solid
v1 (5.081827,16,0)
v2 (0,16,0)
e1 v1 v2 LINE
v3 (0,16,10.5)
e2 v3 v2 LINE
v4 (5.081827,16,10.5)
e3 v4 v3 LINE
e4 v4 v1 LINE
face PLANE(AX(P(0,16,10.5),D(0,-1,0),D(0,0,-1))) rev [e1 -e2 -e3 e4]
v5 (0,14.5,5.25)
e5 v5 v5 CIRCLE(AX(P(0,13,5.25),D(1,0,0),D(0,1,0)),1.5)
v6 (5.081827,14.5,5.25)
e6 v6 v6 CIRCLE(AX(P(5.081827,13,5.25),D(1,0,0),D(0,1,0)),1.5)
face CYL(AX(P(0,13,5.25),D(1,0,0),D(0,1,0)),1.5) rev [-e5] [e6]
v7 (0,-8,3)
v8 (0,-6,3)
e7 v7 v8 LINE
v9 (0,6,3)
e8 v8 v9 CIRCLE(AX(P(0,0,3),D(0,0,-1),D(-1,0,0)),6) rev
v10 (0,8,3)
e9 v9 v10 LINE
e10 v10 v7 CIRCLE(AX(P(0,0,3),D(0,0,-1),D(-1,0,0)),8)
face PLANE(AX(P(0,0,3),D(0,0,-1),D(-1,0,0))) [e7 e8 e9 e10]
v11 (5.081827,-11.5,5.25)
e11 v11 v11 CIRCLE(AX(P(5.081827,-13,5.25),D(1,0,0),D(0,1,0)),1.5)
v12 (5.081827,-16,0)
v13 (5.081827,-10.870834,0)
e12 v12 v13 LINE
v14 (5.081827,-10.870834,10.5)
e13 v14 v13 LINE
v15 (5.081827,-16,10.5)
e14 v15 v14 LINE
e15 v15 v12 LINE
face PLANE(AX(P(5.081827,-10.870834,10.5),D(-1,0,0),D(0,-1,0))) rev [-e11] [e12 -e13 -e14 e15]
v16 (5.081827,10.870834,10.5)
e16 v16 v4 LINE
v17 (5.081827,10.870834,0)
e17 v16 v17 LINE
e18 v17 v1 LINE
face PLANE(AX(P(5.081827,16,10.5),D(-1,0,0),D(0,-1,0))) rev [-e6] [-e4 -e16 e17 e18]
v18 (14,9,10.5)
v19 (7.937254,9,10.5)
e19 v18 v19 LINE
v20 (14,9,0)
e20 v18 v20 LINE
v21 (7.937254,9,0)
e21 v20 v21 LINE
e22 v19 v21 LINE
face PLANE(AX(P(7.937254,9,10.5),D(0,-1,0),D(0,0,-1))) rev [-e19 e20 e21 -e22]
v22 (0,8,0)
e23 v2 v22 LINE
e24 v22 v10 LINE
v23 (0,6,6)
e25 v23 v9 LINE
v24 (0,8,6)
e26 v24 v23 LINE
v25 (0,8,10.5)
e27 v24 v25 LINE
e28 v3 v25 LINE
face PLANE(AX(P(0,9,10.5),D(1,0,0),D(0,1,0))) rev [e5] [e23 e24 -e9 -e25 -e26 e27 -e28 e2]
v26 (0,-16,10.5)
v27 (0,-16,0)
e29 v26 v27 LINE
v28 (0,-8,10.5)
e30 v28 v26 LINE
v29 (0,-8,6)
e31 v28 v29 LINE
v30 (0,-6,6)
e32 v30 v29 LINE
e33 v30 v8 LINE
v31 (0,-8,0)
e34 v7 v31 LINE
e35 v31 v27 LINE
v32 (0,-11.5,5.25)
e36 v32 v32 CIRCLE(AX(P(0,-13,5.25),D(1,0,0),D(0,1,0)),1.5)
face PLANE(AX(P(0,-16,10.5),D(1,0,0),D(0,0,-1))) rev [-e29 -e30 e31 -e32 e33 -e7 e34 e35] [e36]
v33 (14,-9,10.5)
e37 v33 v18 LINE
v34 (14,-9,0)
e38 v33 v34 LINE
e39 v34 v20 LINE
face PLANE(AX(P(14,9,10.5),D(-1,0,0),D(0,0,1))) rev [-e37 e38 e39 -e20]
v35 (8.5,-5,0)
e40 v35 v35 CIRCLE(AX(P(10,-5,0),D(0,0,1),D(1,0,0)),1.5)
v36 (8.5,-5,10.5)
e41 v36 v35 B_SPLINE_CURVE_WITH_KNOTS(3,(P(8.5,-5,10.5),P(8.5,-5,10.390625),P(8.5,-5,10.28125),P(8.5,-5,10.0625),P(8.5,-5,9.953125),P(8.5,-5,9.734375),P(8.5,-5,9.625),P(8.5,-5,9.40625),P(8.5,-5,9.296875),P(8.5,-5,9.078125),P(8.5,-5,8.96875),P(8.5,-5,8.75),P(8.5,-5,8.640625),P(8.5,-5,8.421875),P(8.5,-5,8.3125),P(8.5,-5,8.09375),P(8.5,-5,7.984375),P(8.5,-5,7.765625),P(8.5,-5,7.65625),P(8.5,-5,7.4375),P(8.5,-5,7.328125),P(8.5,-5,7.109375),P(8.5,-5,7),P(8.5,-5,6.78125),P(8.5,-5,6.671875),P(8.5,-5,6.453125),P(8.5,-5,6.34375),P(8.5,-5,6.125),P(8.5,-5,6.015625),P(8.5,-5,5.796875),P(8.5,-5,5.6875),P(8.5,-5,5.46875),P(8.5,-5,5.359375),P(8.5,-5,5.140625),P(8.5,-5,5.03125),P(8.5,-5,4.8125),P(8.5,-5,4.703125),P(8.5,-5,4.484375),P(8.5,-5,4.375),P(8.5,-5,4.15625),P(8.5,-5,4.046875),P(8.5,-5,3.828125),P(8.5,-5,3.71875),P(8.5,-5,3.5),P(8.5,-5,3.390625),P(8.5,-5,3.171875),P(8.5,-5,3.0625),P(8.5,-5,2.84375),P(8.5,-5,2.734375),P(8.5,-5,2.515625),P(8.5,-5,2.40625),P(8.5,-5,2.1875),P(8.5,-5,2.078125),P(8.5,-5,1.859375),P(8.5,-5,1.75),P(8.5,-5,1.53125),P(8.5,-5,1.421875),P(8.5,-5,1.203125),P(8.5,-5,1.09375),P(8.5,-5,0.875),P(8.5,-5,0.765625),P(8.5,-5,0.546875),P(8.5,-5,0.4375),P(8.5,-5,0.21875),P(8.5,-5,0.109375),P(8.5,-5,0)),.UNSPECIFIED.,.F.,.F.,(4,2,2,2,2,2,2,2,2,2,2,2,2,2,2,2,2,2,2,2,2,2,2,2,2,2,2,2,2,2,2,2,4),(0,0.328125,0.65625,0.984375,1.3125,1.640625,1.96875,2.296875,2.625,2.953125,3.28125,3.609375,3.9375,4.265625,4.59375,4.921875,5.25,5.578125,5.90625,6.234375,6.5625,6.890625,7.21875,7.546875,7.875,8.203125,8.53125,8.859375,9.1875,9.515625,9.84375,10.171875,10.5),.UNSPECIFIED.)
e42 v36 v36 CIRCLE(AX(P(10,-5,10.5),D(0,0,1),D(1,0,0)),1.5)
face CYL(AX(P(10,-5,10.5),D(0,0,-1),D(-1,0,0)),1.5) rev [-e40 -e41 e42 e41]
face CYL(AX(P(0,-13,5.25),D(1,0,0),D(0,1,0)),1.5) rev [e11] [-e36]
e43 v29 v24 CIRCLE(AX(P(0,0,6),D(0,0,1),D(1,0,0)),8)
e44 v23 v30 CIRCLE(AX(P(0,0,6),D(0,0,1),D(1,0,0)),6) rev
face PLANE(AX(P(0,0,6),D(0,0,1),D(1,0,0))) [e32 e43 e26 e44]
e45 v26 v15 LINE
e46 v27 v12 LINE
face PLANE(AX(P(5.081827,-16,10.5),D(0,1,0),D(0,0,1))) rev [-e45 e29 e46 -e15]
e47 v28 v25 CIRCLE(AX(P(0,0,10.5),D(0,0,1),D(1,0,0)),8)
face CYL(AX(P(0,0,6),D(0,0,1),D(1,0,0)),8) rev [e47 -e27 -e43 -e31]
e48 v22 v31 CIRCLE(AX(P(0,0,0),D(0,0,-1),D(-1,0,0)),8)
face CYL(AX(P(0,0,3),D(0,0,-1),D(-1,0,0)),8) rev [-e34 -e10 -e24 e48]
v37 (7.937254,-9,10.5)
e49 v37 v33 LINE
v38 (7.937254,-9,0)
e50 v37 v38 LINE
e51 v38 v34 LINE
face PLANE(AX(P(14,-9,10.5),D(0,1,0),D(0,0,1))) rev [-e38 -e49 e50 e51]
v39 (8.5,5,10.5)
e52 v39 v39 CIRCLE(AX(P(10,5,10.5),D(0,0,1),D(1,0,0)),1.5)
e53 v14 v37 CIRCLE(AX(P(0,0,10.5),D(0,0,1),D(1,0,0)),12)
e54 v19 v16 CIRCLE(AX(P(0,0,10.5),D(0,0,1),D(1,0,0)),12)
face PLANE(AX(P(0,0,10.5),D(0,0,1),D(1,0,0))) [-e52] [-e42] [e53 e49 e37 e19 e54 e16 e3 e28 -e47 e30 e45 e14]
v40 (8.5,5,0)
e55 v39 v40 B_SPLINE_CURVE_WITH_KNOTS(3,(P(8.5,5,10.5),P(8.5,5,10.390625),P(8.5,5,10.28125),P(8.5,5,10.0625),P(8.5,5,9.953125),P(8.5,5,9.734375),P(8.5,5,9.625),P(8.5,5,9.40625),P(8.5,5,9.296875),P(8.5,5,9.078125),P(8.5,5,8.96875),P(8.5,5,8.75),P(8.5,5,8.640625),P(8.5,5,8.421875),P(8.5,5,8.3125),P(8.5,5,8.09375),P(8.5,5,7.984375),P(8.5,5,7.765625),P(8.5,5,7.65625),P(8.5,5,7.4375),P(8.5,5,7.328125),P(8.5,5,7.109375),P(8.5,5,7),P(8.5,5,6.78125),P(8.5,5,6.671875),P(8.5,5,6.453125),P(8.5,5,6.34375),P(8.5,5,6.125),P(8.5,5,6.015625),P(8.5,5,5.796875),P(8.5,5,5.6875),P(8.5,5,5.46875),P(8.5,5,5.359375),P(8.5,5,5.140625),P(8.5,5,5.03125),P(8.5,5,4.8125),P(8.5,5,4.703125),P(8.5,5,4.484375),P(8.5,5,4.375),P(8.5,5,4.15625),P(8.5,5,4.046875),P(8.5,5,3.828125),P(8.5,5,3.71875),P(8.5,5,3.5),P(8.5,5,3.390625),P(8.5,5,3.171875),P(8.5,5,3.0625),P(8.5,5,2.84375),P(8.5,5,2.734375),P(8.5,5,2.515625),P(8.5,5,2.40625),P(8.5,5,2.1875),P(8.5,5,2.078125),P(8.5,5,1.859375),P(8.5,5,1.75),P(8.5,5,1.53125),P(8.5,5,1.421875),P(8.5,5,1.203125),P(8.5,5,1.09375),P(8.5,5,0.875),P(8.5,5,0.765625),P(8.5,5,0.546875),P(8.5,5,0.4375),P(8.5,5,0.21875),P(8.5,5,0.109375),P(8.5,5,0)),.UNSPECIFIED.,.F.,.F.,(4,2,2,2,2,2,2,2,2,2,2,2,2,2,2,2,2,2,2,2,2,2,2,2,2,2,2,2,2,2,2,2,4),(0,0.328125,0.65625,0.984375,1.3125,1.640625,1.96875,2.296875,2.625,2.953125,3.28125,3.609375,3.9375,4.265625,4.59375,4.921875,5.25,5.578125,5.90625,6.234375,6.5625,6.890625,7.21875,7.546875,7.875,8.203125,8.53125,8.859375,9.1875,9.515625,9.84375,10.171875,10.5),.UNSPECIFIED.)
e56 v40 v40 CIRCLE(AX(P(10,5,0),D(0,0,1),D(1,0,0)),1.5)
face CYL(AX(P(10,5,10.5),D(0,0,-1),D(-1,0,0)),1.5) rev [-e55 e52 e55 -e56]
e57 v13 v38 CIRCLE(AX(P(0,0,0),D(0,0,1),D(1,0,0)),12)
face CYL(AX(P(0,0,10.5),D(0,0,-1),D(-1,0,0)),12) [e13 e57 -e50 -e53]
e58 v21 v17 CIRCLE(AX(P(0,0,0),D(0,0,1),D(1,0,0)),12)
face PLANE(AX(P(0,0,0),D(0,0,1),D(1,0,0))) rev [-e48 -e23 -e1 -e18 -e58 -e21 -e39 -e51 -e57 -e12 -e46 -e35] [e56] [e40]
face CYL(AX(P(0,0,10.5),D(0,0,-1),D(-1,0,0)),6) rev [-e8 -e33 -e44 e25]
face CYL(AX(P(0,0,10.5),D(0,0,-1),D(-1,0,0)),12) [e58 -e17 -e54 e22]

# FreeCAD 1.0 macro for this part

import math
import FreeCAD as App
import Part
import Sketcher
from FreeCAD import Vector
Q = App.Units.Quantity

doc = App.newDocument("Part")
body = doc.addObject("PartDesign::Body", "Body")

# Sketch on XY plane
sketch1 = body.newObject("Sketcher::SketchObject", "Sketch")
sketch1.AttachmentSupport = (doc.getObject("XY_Plane"), [""])
sketch1.MapMode = "FlatFace"
sketch1.addGeometry([
    Part.LineSegment(Vector(14, 9, 0), Vector(7.9, 9, 0)),  # 0
    Part.ArcOfCircle(Part.Circle(Vector(0, 0, 0), Vector(0, 0, 1), 12), math.radians(48.59), math.radians(64.95)),  # 1
    Part.LineSegment(Vector(5.1, 10.9, 0), Vector(5.1, 16, 0)),  # 2
    Part.LineSegment(Vector(5.1, 16, 0), Vector(0, 16, 0)),  # 3
    Part.LineSegment(Vector(0, 16, 0), Vector(0, 6, 0)),  # 4
    Part.ArcOfCircle(Part.Circle(Vector(0, 0, 0), Vector(0, 0, 1), 6), math.radians(-90), math.radians(90)),  # 5
    Part.LineSegment(Vector(0, -6, 0), Vector(0, -16, 0)),  # 6
    Part.LineSegment(Vector(0, -16, 0), Vector(5.1, -16, 0)),  # 7
    Part.LineSegment(Vector(5.1, -16, 0), Vector(5.1, -10.9, 0)),  # 8
    Part.ArcOfCircle(Part.Circle(Vector(0, 0, 0), Vector(0, 0, 1), 12), math.radians(-64.95), math.radians(-48.59)),  # 9
    Part.LineSegment(Vector(7.9, -9, 0), Vector(14, -9, 0)),  # 10
    Part.LineSegment(Vector(14, -9, 0), Vector(14, 9, 0)),  # 11
    Part.Circle(Vector(10, -5, 0), Vector(0, 0, 1), 1.5),  # 12
    Part.Circle(Vector(10, 5, 0), Vector(0, 0, 1), 1.5),  # 13
], False)
sketch1.addConstraint([
    Sketcher.Constraint("Coincident", 0, 2, 1, 1),
    Sketcher.Constraint("Coincident", 1, 2, 2, 1),
    Sketcher.Constraint("Coincident", 2, 2, 3, 1),
    Sketcher.Constraint("Coincident", 3, 2, 4, 1),
    Sketcher.Constraint("Coincident", 4, 2, 5, 2),
    Sketcher.Constraint("Coincident", 5, 1, 6, 1),
    Sketcher.Constraint("Coincident", 6, 2, 7, 1),
    Sketcher.Constraint("Coincident", 7, 2, 8, 1),
    Sketcher.Constraint("Coincident", 8, 2, 9, 1),
    Sketcher.Constraint("Coincident", 9, 2, 10, 1),
    Sketcher.Constraint("Coincident", 10, 2, 11, 1),
    Sketcher.Constraint("Coincident", 11, 2, 0, 1),
    Sketcher.Constraint("Horizontal", 0),
    Sketcher.Constraint("Vertical", 2),
    Sketcher.Constraint("Horizontal", 3),
    Sketcher.Constraint("Vertical", 4),
    Sketcher.Constraint("Vertical", 6),
    Sketcher.Constraint("Horizontal", 7),
    Sketcher.Constraint("Vertical", 8),
    Sketcher.Constraint("Horizontal", 10),
    Sketcher.Constraint("Vertical", 11),
    Sketcher.Constraint("Coincident", 1, 3, -1, 1),
    Sketcher.Constraint("Coincident", 5, 3, -1, 1),
    Sketcher.Constraint("Coincident", 9, 3, -1, 1),
    Sketcher.Constraint("Equal", 1, 9),
    Sketcher.Constraint("Equal", 12, 13),
    Sketcher.Constraint("Symmetric", 3, 2, 6, 2, -1, 1),
    Sketcher.Constraint("Symmetric", 12, 3, 13, 3, -1),
    Sketcher.Constraint("PointOnObject", 3, 2, -2),
    Sketcher.Constraint("Vertical", 2, 2, 7, 2),
    Sketcher.Constraint("Vertical", 0, 2, 9, 2),
    Sketcher.Constraint("Diameter", 12, Q("3 mm")),
    Sketcher.Constraint("Radius", 1, Q("12 mm")),
    Sketcher.Constraint("Radius", 5, Q("6 mm")),
    Sketcher.Constraint("DistanceY", 4, 2, 4, 1, Q("10 mm")),
    Sketcher.Constraint("DistanceY", 11, 1, 11, 2, Q("18 mm")),
    Sketcher.Constraint("DistanceX", -1, 1, 12, 3, Q("10 mm")),
    Sketcher.Constraint("DistanceY", 12, 3, -1, 1, Q("5 mm")),
    Sketcher.Constraint("DistanceX", -1, 1, 10, 2, Q("14 mm")),
    Sketcher.Constraint("DistanceX", 3, 2, 3, 1, Q("5.081827 mm")),
])
pad1 = body.newObject("PartDesign::Pad", "Pad")
pad1.Profile = sketch1
pad1.Length = 10.5

# Sketch on XY plane
sketch2 = body.newObject("Sketcher::SketchObject", "Sketch001")
sketch2.AttachmentSupport = (doc.getObject("XY_Plane"), [""])
sketch2.MapMode = "FlatFace"
sketch2.AttachmentOffset = App.Placement(Vector(0, 0, 10.5), App.Rotation())
sketch2.addGeometry(Part.Circle(Vector(0, 0, 0), Vector(0, 0, 1), 8), False)
sketch2.addConstraint([
    Sketcher.Constraint("Coincident", 0, 3, -1, 1),
    Sketcher.Constraint("Diameter", 0, Q("16 mm")),
])
pocket1 = body.newObject("PartDesign::Pocket", "Pocket")
pocket1.Profile = sketch2
pocket1.Length = 4.5

# Sketch on YZ plane
sketch3 = body.newObject("Sketcher::SketchObject", "Sketch002")
sketch3.AttachmentSupport = (doc.getObject("YZ_Plane"), [""])
sketch3.MapMode = "FlatFace"
sketch3.AttachmentOffset = App.Placement(Vector(0, 0, 5.081827), App.Rotation())
sketch3.addGeometry([
    Part.Circle(Vector(13, 5.2, 0), Vector(0, 0, 1), 1.5),
    Part.Circle(Vector(-13, 5.2, 0), Vector(0, 0, 1), 1.5),
], False)
sketch3.addConstraint([
    Sketcher.Constraint("Equal", 0, 1),
    Sketcher.Constraint("Symmetric", 0, 3, 1, 3, -2),
    Sketcher.Constraint("Diameter", 0, Q("3 mm")),
    Sketcher.Constraint("DistanceX", -1, 1, 0, 3, Q("13 mm")),
    Sketcher.Constraint("DistanceY", -1, 1, 0, 3, Q("5.25 mm")),
])
pocket2 = body.newObject("PartDesign::Pocket", "Pocket001")
pocket2.Profile = sketch3
pocket2.Type = "ThroughAll"

# Sketch on XY plane
sketch4 = body.newObject("Sketcher::SketchObject", "Sketch003")
sketch4.AttachmentSupport = (doc.getObject("XY_Plane"), [""])
sketch4.MapMode = "FlatFace"
sketch4.AttachmentOffset = App.Placement(Vector(0, 0, 3), App.Rotation())
sketch4.addGeometry(Part.Circle(Vector(0, 0, 0), Vector(0, 0, 1), 8), False)
sketch4.addConstraint([
    Sketcher.Constraint("Coincident", 0, 3, -1, 1),
    Sketcher.Constraint("Diameter", 0, Q("16 mm")),
])
pocket3 = body.newObject("PartDesign::Pocket", "Pocket002")
pocket3.Profile = sketch4
pocket3.Length = 3

doc.recompute()
